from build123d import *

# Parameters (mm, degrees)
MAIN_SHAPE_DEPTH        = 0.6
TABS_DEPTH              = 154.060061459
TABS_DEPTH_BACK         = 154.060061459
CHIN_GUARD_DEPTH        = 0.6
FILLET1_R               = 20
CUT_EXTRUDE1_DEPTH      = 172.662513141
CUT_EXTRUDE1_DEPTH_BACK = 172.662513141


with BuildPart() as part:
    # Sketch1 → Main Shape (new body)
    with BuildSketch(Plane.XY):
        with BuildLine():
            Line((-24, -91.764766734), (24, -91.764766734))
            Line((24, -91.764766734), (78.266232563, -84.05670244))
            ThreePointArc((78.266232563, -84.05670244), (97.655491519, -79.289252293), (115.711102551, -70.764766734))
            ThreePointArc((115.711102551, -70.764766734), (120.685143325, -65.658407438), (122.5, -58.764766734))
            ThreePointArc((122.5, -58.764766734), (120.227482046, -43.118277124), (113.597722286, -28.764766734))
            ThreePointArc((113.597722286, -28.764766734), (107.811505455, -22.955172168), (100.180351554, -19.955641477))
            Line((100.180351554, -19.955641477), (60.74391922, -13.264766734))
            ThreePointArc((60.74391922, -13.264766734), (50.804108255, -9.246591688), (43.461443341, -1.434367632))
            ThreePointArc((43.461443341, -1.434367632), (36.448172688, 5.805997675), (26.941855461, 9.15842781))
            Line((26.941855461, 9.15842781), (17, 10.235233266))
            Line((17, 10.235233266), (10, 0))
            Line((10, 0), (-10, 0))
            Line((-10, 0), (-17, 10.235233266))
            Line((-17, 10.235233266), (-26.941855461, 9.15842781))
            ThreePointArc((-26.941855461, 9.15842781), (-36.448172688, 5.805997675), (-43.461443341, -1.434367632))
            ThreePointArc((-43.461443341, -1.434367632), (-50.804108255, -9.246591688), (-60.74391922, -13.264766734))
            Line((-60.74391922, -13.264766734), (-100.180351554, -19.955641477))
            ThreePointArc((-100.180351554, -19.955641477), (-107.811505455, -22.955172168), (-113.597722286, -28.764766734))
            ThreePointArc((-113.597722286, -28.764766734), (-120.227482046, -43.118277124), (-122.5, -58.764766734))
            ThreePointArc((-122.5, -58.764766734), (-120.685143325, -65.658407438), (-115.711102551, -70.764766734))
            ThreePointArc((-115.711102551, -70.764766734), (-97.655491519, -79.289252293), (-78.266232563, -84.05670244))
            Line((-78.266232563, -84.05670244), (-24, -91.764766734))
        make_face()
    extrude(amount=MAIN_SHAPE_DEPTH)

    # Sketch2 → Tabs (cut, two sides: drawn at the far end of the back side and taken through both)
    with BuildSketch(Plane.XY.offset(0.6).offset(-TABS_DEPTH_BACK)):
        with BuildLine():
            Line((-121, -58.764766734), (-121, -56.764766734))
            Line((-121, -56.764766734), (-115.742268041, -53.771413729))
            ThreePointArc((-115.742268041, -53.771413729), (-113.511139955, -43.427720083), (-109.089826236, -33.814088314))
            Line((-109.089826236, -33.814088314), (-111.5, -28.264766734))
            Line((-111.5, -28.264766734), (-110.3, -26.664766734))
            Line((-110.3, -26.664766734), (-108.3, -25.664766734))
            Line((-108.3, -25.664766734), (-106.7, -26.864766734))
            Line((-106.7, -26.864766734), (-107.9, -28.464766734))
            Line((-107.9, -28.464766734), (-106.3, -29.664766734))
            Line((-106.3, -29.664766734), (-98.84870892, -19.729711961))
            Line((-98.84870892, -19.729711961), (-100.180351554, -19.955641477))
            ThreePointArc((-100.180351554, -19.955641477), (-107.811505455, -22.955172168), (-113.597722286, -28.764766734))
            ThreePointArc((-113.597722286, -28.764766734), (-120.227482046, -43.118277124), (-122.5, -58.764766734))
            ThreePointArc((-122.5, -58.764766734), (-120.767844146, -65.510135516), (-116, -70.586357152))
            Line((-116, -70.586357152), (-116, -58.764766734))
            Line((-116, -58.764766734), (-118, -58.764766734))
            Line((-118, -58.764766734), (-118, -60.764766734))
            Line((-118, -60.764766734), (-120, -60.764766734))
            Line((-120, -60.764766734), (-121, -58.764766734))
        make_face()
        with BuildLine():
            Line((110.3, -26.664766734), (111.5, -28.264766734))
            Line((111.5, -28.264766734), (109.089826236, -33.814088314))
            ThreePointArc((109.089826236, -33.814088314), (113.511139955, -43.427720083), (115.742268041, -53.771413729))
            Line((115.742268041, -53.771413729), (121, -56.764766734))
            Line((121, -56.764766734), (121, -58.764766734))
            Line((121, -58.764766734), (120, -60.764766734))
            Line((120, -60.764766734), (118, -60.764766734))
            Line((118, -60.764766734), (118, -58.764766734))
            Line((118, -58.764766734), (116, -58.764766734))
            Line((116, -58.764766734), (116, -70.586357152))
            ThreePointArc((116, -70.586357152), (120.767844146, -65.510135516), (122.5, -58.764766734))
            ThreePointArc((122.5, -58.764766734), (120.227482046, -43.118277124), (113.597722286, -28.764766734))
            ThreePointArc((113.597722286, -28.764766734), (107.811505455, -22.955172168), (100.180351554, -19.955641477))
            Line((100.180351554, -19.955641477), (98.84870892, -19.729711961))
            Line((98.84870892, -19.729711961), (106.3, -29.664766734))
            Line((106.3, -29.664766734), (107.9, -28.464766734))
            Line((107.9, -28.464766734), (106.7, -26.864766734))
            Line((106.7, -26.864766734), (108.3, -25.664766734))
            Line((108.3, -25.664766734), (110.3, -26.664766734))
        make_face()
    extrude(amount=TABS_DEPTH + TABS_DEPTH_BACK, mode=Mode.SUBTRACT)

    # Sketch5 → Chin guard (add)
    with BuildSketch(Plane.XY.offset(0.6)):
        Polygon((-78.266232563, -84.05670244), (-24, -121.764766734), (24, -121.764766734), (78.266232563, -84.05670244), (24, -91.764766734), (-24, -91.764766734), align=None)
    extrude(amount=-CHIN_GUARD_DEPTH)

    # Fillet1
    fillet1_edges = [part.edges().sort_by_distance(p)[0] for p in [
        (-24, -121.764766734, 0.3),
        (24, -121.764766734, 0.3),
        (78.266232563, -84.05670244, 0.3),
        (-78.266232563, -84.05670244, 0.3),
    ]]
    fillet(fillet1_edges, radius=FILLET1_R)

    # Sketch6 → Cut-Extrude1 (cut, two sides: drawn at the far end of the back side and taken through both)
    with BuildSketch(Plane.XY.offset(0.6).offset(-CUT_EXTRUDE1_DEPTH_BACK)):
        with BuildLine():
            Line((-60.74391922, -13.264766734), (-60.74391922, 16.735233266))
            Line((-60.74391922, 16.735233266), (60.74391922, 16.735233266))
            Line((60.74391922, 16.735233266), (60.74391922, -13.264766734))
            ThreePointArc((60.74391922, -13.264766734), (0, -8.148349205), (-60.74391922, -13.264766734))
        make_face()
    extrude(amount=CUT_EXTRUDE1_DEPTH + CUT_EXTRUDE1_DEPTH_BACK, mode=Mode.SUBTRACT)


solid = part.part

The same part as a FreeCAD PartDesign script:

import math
import FreeCAD as App
import Part
import Sketcher


def edges_at(feature, points):
    """Names of the edges that pass closest to the given points."""
    edges = feature.Shape.Edges
    near = lambda p: min(range(len(edges)), key=lambda i: edges[i].distToShape(Part.Vertex(*p))[0])
    return sorted({f"Edge{near(p) + 1}" for p in points})


def add_polygon(sketch, points):
    """Adds a closed chain of lines whose ends are joined by coincident constraints."""
    first, n = sketch.GeometryCount, len(points)
    for a, b in zip(points, points[1:] + points[:1]):
        sketch.addGeometry(Part.LineSegment(App.Vector(*a, 0), App.Vector(*b, 0)), False)
    for i in range(n):
        sketch.addConstraint(Sketcher.Constraint("Coincident", first + i, 2, first + (i + 1) % n, 1))

doc = App.newDocument("Part")
body = doc.addObject("PartDesign::Body", "Body")

# Sketch on XY plane
sketch1 = body.newObject("Sketcher::SketchObject", "Sketch")
sketch1.AttachmentSupport = (doc.getObject("XY_Plane"), [""])
sketch1.MapMode = "FlatFace"
sketch1.addGeometry(Part.LineSegment(App.Vector(-24, -92, 0), App.Vector(24, -92, 0)), False)
sketch1.addGeometry(Part.LineSegment(App.Vector(24, -92, 0), App.Vector(78, -84, 0)), False)
sketch1.addGeometry(Part.ArcOfCircle(Part.Circle(App.Vector(64, 15, 0), App.Vector(0, 0, 1), 100), math.radians(-82), math.radians(-59)), False)
sketch1.addGeometry(Part.ArcOfCircle(Part.Circle(App.Vector(109, -59, 0), App.Vector(0, 0, 1), 14), math.radians(-59), math.radians(0)), False)
sketch1.addGeometry(Part.ArcOfCircle(Part.Circle(App.Vector(68, -59, 0), App.Vector(0, 0, 1), 55), math.radians(0), math.radians(33)), False)
sketch1.addGeometry(Part.ArcOfCircle(Part.Circle(App.Vector(97, -40, 0), App.Vector(0, 0, 1), 20), math.radians(33), math.radians(80)), False)
sketch1.addGeometry(Part.LineSegment(App.Vector(100, -20, 0), App.Vector(61, -13, 0)), False)
sketch1.addGeometry(Part.ArcOfCircle(Part.Circle(App.Vector(65, 11, 0), App.Vector(0, 0, 1), 25), math.radians(-149), math.radians(-100)), False)
sketch1.addGeometry(Part.ArcOfCircle(Part.Circle(App.Vector(25, -13, 0), App.Vector(0, 0, 1), 22), math.radians(31), math.radians(84)), False)
sketch1.addGeometry(Part.LineSegment(App.Vector(27, 9, 0), App.Vector(17, 10, 0)), False)
sketch1.addGeometry(Part.LineSegment(App.Vector(17, 10, 0), App.Vector(10, 0, 0)), False)
sketch1.addGeometry(Part.LineSegment(App.Vector(10, 0, 0), App.Vector(-10, 0, 0)), False)
sketch1.addGeometry(Part.LineSegment(App.Vector(-10, 0, 0), App.Vector(-17, 10, 0)), False)
sketch1.addGeometry(Part.LineSegment(App.Vector(-17, 10, 0), App.Vector(-27, 9, 0)), False)
sketch1.addGeometry(Part.ArcOfCircle(Part.Circle(App.Vector(-25, -13, 0), App.Vector(0, 0, 1), 22), math.radians(96), math.radians(149)), False)
sketch1.addGeometry(Part.ArcOfCircle(Part.Circle(App.Vector(-65, 11, 0), App.Vector(0, 0, 1), 25), math.radians(-80), math.radians(-31)), False)
sketch1.addGeometry(Part.LineSegment(App.Vector(-61, -13, 0), App.Vector(-100, -20, 0)), False)
sketch1.addGeometry(Part.ArcOfCircle(Part.Circle(App.Vector(-97, -40, 0), App.Vector(0, 0, 1), 20), math.radians(100), math.radians(147)), False)
sketch1.addGeometry(Part.ArcOfCircle(Part.Circle(App.Vector(-68, -59, 0), App.Vector(0, 0, 1), 55), math.radians(147), math.radians(180)), False)
sketch1.addGeometry(Part.ArcOfCircle(Part.Circle(App.Vector(-109, -59, 0), App.Vector(0, 0, 1), 14), math.radians(180), math.radians(239)), False)
sketch1.addGeometry(Part.ArcOfCircle(Part.Circle(App.Vector(-64, 15, 0), App.Vector(0, 0, 1), 100), math.radians(-121), math.radians(-98)), False)
sketch1.addGeometry(Part.LineSegment(App.Vector(-78, -84, 0), App.Vector(-24, -92, 0)), False)
sketch1.addConstraint(Sketcher.Constraint("Coincident", 0, 2, 1, 1))
sketch1.addConstraint(Sketcher.Constraint("Tangent", 1, 2, 2, 1))
sketch1.addConstraint(Sketcher.Constraint("Tangent", 2, 2, 3, 1))
sketch1.addConstraint(Sketcher.Constraint("Tangent", 3, 2, 4, 1))
sketch1.addConstraint(Sketcher.Constraint("Tangent", 4, 2, 5, 1))
sketch1.addConstraint(Sketcher.Constraint("Tangent", 5, 2, 6, 1))
sketch1.addConstraint(Sketcher.Constraint("Tangent", 6, 2, 7, 2))
sketch1.addConstraint(Sketcher.Constraint("Tangent", 7, 1, 8, 1))
sketch1.addConstraint(Sketcher.Constraint("Tangent", 8, 2, 9, 1))
sketch1.addConstraint(Sketcher.Constraint("Coincident", 9, 2, 10, 1))
sketch1.addConstraint(Sketcher.Constraint("Coincident", 10, 2, 11, 1))
sketch1.addConstraint(Sketcher.Constraint("Coincident", 11, 2, 12, 1))
sketch1.addConstraint(Sketcher.Constraint("Coincident", 12, 2, 13, 1))
sketch1.addConstraint(Sketcher.Constraint("Tangent", 13, 2, 14, 1))
sketch1.addConstraint(Sketcher.Constraint("Tangent", 14, 2, 15, 2))
sketch1.addConstraint(Sketcher.Constraint("Tangent", 15, 1, 16, 1))
sketch1.addConstraint(Sketcher.Constraint("Tangent", 16, 2, 17, 1))
sketch1.addConstraint(Sketcher.Constraint("Tangent", 17, 2, 18, 1))
sketch1.addConstraint(Sketcher.Constraint("Tangent", 18, 2, 19, 1))
sketch1.addConstraint(Sketcher.Constraint("Tangent", 19, 2, 20, 1))
sketch1.addConstraint(Sketcher.Constraint("Tangent", 20, 2, 21, 1))
sketch1.addConstraint(Sketcher.Constraint("Coincident", 21, 2, 0, 1))
sketch1.addConstraint(Sketcher.Constraint("Horizontal", 0))
sketch1.addConstraint(Sketcher.Constraint("Horizontal", 11))
sketch1.addConstraint(Sketcher.Constraint("Equal", 8, 14))
sketch1.addConstraint(Sketcher.Constraint("Equal", 7, 15))
sketch1.addConstraint(Sketcher.Constraint("Equal", 5, 17))
sketch1.addConstraint(Sketcher.Constraint("Equal", 4, 18))
sketch1.addConstraint(Sketcher.Constraint("Equal", 3, 19))
sketch1.addConstraint(Sketcher.Constraint("Equal", 2, 20))
sketch1.addConstraint(Sketcher.Constraint("Symmetric", 10, 2, 11, 2, -1, 1))
sketch1.addConstraint(Sketcher.Constraint("Symmetric", 8, 3, 14, 3, -2))
sketch1.addConstraint(Sketcher.Constraint("Symmetric", 5, 3, 17, 3, -2))
sketch1.addConstraint(Sketcher.Constraint("Symmetric", 3, 3, 19, 3, -2))
sketch1.addConstraint(Sketcher.Constraint("Symmetric", 9, 2, 12, 2, -2))
sketch1.addConstraint(Sketcher.Constraint("Symmetric", 1, 2, 20, 2, -2))
sketch1.addConstraint(Sketcher.Constraint("Horizontal", 3, 3, 4, 3))
sketch1.addConstraint(Sketcher.Constraint("Horizontal", 7, 3, 15, 3))
sketch1.addConstraint(Sketcher.Constraint("Radius", 2, 100.0))
sketch1.addConstraint(Sketcher.Constraint("Radius", 3, 14.0))
sketch1.addConstraint(Sketcher.Constraint("Radius", 4, 55.0))
sketch1.addConstraint(Sketcher.Constraint("Radius", 5, 20.0))
sketch1.addConstraint(Sketcher.Constraint("Radius", 7, 25.0))
sketch1.addConstraint(Sketcher.Constraint("Radius", 8, 22.0))
sketch1.addConstraint(Sketcher.Constraint("DistanceX", 0, 1, 0, 2, 48.0))
sketch1.addConstraint(Sketcher.Constraint("DistanceX", 11, 2, 11, 1, 20.0))
sketch1.addConstraint(Sketcher.Constraint("Distance", 6, 40.0))
sketch1.addConstraint(Sketcher.Constraint("Distance", 9, 10.0))
sketch1.addConstraint(Sketcher.Constraint("DistanceX", -1, 1, 9, 2, 17.0))
sketch1.addConstraint(Sketcher.Constraint("DistanceX", 18, 3, 4, 3, 135.0))
sketch1.addConstraint(Sketcher.Constraint("DistanceY", 0, 2, 4, 3, 33.0))
sketch1.addConstraint(Sketcher.Constraint("DistanceY", 3, 3, 4, 2, 30.0))
sketch1.addConstraint(Sketcher.Constraint("DistanceY", 19, 2, 19, 3, 12.0))
sketch1.addConstraint(Sketcher.Constraint("Distance", 10, 12.4))
sketch1.addConstraint(Sketcher.Constraint("DistanceY", 17, 2, 15, 1, 15.5))
sketch1.addConstraint(Sketcher.Constraint("DistanceX", 14, 3, 7, 3, 89.498599))
pad1 = body.newObject("PartDesign::Pad", "Pad")
pad1.Profile = sketch1
pad1.Length = 0.6

# Sketch on XY plane
sketch2 = body.newObject("Sketcher::SketchObject", "Sketch001")
sketch2.AttachmentSupport = (doc.getObject("XY_Plane"), [""])
sketch2.MapMode = "FlatFace"
sketch2.AttachmentOffset = App.Placement(App.Vector(0, 0, 0.6), App.Rotation())
sketch2.addGeometry(Part.LineSegment(App.Vector(-121, -58.8, 0), App.Vector(-121, -56.8, 0)), False)
sketch2.addGeometry(Part.LineSegment(App.Vector(-121, -56.8, 0), App.Vector(-115.7, -53.8, 0)), False)
sketch2.addGeometry(Part.ArcOfCircle(Part.Circle(App.Vector(-67.5, -58.8, 0), App.Vector(0, 0, 1), 48.5), math.radians(149), math.radians(174)), False)
sketch2.addGeometry(Part.LineSegment(App.Vector(-109.1, -33.8, 0), App.Vector(-111.5, -28.3, 0)), False)
sketch2.addGeometry(Part.LineSegment(App.Vector(-111.5, -28.3, 0), App.Vector(-110.3, -26.7, 0)), False)
sketch2.addGeometry(Part.LineSegment(App.Vector(-110.3, -26.7, 0), App.Vector(-108.3, -25.7, 0)), False)
sketch2.addGeometry(Part.LineSegment(App.Vector(-108.3, -25.7, 0), App.Vector(-106.7, -26.9, 0)), False)
sketch2.addGeometry(Part.LineSegment(App.Vector(-106.7, -26.9, 0), App.Vector(-107.9, -28.5, 0)), False)
sketch2.addGeometry(Part.LineSegment(App.Vector(-107.9, -28.5, 0), App.Vector(-106.3, -29.7, 0)), False)
sketch2.addGeometry(Part.LineSegment(App.Vector(-106.3, -29.7, 0), App.Vector(-98.8, -19.7, 0)), False)
sketch2.addGeometry(Part.LineSegment(App.Vector(-98.8, -19.7, 0), App.Vector(-100.2, -20, 0)), False)
sketch2.addGeometry(Part.ArcOfCircle(Part.Circle(App.Vector(-96.8, -39.7, 0), App.Vector(0, 0, 1), 20), math.radians(100), math.radians(147)), False)
sketch2.addGeometry(Part.ArcOfCircle(Part.Circle(App.Vector(-67.5, -58.8, 0), App.Vector(0, 0, 1), 55), math.radians(147), math.radians(180)), False)
sketch2.addGeometry(Part.ArcOfCircle(Part.Circle(App.Vector(-108.5, -58.8, 0), App.Vector(0, 0, 1), 14), math.radians(-180), math.radians(-122)), False)
sketch2.addGeometry(Part.LineSegment(App.Vector(-116, -70.6, 0), App.Vector(-116, -58.8, 0)), False)
sketch2.addGeometry(Part.LineSegment(App.Vector(-116, -58.8, 0), App.Vector(-118, -58.8, 0)), False)
sketch2.addGeometry(Part.LineSegment(App.Vector(-118, -58.8, 0), App.Vector(-118, -60.8, 0)), False)
sketch2.addGeometry(Part.LineSegment(App.Vector(-118, -60.8, 0), App.Vector(-120, -60.8, 0)), False)
sketch2.addGeometry(Part.LineSegment(App.Vector(-120, -60.8, 0), App.Vector(-121, -58.8, 0)), False)
sketch2.addGeometry(Part.LineSegment(App.Vector(110.3, -26.7, 0), App.Vector(111.5, -28.3, 0)), False)
sketch2.addGeometry(Part.LineSegment(App.Vector(111.5, -28.3, 0), App.Vector(109.1, -33.8, 0)), False)
sketch2.addGeometry(Part.ArcOfCircle(Part.Circle(App.Vector(67.5, -58.8, 0), App.Vector(0, 0, 1), 48.5), math.radians(6), math.radians(31)), False)
sketch2.addGeometry(Part.LineSegment(App.Vector(115.7, -53.8, 0), App.Vector(121, -56.8, 0)), False)
sketch2.addGeometry(Part.LineSegment(App.Vector(121, -56.8, 0), App.Vector(121, -58.8, 0)), False)
sketch2.addGeometry(Part.LineSegment(App.Vector(121, -58.8, 0), App.Vector(120, -60.8, 0)), False)
sketch2.addGeometry(Part.LineSegment(App.Vector(120, -60.8, 0), App.Vector(118, -60.8, 0)), False)
sketch2.addGeometry(Part.LineSegment(App.Vector(118, -60.8, 0), App.Vector(118, -58.8, 0)), False)
sketch2.addGeometry(Part.LineSegment(App.Vector(118, -58.8, 0), App.Vector(116, -58.8, 0)), False)
sketch2.addGeometry(Part.LineSegment(App.Vector(116, -58.8, 0), App.Vector(116, -70.6, 0)), False)
sketch2.addGeometry(Part.ArcOfCircle(Part.Circle(App.Vector(108.5, -58.8, 0), App.Vector(0, 0, 1), 14), math.radians(-58), math.radians(0)), False)
sketch2.addGeometry(Part.ArcOfCircle(Part.Circle(App.Vector(67.5, -58.8, 0), App.Vector(0, 0, 1), 55), math.radians(0), math.radians(33)), False)
sketch2.addGeometry(Part.ArcOfCircle(Part.Circle(App.Vector(96.8, -39.7, 0), App.Vector(0, 0, 1), 20), math.radians(33), math.radians(80)), False)
sketch2.addGeometry(Part.LineSegment(App.Vector(100.2, -20, 0), App.Vector(98.8, -19.7, 0)), False)
sketch2.addGeometry(Part.LineSegment(App.Vector(98.8, -19.7, 0), App.Vector(106.3, -29.7, 0)), False)
sketch2.addGeometry(Part.LineSegment(App.Vector(106.3, -29.7, 0), App.Vector(107.9, -28.5, 0)), False)
sketch2.addGeometry(Part.LineSegment(App.Vector(107.9, -28.5, 0), App.Vector(106.7, -26.9, 0)), False)
sketch2.addGeometry(Part.LineSegment(App.Vector(106.7, -26.9, 0), App.Vector(108.3, -25.7, 0)), False)
sketch2.addGeometry(Part.LineSegment(App.Vector(108.3, -25.7, 0), App.Vector(110.3, -26.7, 0)), False)
sketch2.addConstraint(Sketcher.Constraint("Coincident", 0, 2, 1, 1))
sketch2.addConstraint(Sketcher.Constraint("Coincident", 1, 2, 2, 2))
sketch2.addConstraint(Sketcher.Constraint("Coincident", 2, 1, 3, 1))
sketch2.addConstraint(Sketcher.Constraint("Coincident", 3, 2, 4, 1))
sketch2.addConstraint(Sketcher.Constraint("Coincident", 4, 2, 5, 1))
sketch2.addConstraint(Sketcher.Constraint("Coincident", 5, 2, 6, 1))
sketch2.addConstraint(Sketcher.Constraint("Coincident", 6, 2, 7, 1))
sketch2.addConstraint(Sketcher.Constraint("Coincident", 7, 2, 8, 1))
sketch2.addConstraint(Sketcher.Constraint("Coincident", 8, 2, 9, 1))
sketch2.addConstraint(Sketcher.Constraint("Coincident", 9, 2, 10, 1))
sketch2.addConstraint(Sketcher.Constraint("Tangent", 10, 2, 11, 1))
sketch2.addConstraint(Sketcher.Constraint("Tangent", 11, 2, 12, 1))
sketch2.addConstraint(Sketcher.Constraint("Tangent", 12, 2, 13, 1))
sketch2.addConstraint(Sketcher.Constraint("Coincident", 13, 2, 14, 1))
sketch2.addConstraint(Sketcher.Constraint("Coincident", 14, 2, 15, 1))
sketch2.addConstraint(Sketcher.Constraint("Coincident", 15, 2, 16, 1))
sketch2.addConstraint(Sketcher.Constraint("Coincident", 16, 2, 17, 1))
sketch2.addConstraint(Sketcher.Constraint("Coincident", 17, 2, 18, 1))
sketch2.addConstraint(Sketcher.Constraint("Coincident", 18, 2, 0, 1))
sketch2.addConstraint(Sketcher.Constraint("Coincident", 19, 2, 20, 1))
sketch2.addConstraint(Sketcher.Constraint("Coincident", 20, 2, 21, 2))
sketch2.addConstraint(Sketcher.Constraint("Coincident", 21, 1, 22, 1))
sketch2.addConstraint(Sketcher.Constraint("Coincident", 22, 2, 23, 1))
sketch2.addConstraint(Sketcher.Constraint("Coincident", 23, 2, 24, 1))
sketch2.addConstraint(Sketcher.Constraint("Coincident", 24, 2, 25, 1))
sketch2.addConstraint(Sketcher.Constraint("Coincident", 25, 2, 26, 1))
sketch2.addConstraint(Sketcher.Constraint("Coincident", 26, 2, 27, 1))
sketch2.addConstraint(Sketcher.Constraint("Coincident", 27, 2, 28, 1))
sketch2.addConstraint(Sketcher.Constraint("Coincident", 28, 2, 29, 1))
sketch2.addConstraint(Sketcher.Constraint("Tangent", 29, 2, 30, 1))
sketch2.addConstraint(Sketcher.Constraint("Tangent", 30, 2, 31, 1))
sketch2.addConstraint(Sketcher.Constraint("Tangent", 31, 2, 32, 1))
sketch2.addConstraint(Sketcher.Constraint("Coincident", 32, 2, 33, 1))
sketch2.addConstraint(Sketcher.Constraint("Coincident", 33, 2, 34, 1))
sketch2.addConstraint(Sketcher.Constraint("Coincident", 34, 2, 35, 1))
sketch2.addConstraint(Sketcher.Constraint("Coincident", 35, 2, 36, 1))
sketch2.addConstraint(Sketcher.Constraint("Coincident", 36, 2, 37, 1))
sketch2.addConstraint(Sketcher.Constraint("Coincident", 37, 2, 19, 1))
sketch2.addConstraint(Sketcher.Constraint("Vertical", 0))
sketch2.addConstraint(Sketcher.Constraint("Vertical", 14))
sketch2.addConstraint(Sketcher.Constraint("Horizontal", 15))
sketch2.addConstraint(Sketcher.Constraint("Vertical", 16))
sketch2.addConstraint(Sketcher.Constraint("Horizontal", 17))
sketch2.addConstraint(Sketcher.Constraint("Vertical", 23))
sketch2.addConstraint(Sketcher.Constraint("Horizontal", 25))
sketch2.addConstraint(Sketcher.Constraint("Vertical", 26))
sketch2.addConstraint(Sketcher.Constraint("Horizontal", 27))
sketch2.addConstraint(Sketcher.Constraint("Vertical", 28))
sketch2.addConstraint(Sketcher.Constraint("Coincident", 12, 3, 2, 3))
sketch2.addConstraint(Sketcher.Constraint("Coincident", 30, 3, 21, 3))
sketch2.addConstraint(Sketcher.Constraint("Equal", 2, 21))
sketch2.addConstraint(Sketcher.Constraint("Equal", 13, 29))
sketch2.addConstraint(Sketcher.Constraint("Equal", 12, 30))
sketch2.addConstraint(Sketcher.Constraint("Equal", 11, 31))
sketch2.addConstraint(Sketcher.Constraint("Symmetric", 2, 3, 21, 3, -2))
sketch2.addConstraint(Sketcher.Constraint("Symmetric", 3, 2, 19, 2, -2))
sketch2.addConstraint(Sketcher.Constraint("Symmetric", 0, 2, 22, 2, -2))
sketch2.addConstraint(Sketcher.Constraint("Symmetric", 17, 2, 24, 2, -2))
sketch2.addConstraint(Sketcher.Constraint("Symmetric", 15, 2, 26, 2, -2))
sketch2.addConstraint(Sketcher.Constraint("Symmetric", 13, 2, 28, 2, -2))
sketch2.addConstraint(Sketcher.Constraint("Symmetric", 10, 2, 31, 2, -2))
sketch2.addConstraint(Sketcher.Constraint("Symmetric", 8, 2, 33, 2, -2))
sketch2.addConstraint(Sketcher.Constraint("Symmetric", 7, 2, 34, 2, -2))
sketch2.addConstraint(Sketcher.Constraint("Symmetric", 6, 2, 35, 2, -2))
sketch2.addConstraint(Sketcher.Constraint("Symmetric", 5, 2, 36, 2, -2))
sketch2.addConstraint(Sketcher.Constraint("Symmetric", 4, 2, 37, 2, -2))
sketch2.addConstraint(Sketcher.Constraint("Perpendicular", 4, 6))
sketch2.addConstraint(Sketcher.Constraint("Perpendicular", 6, 7))
sketch2.addConstraint(Sketcher.Constraint("Perpendicular", 7, 8))
sketch2.addConstraint(Sketcher.Constraint("Perpendicular", 8, 9))
sketch2.addConstraint(Sketcher.Constraint("Perpendicular", 5, 18))
sketch2.addConstraint(Sketcher.Constraint("Parallel", 19, 33))
sketch2.addConstraint(Sketcher.Constraint("Perpendicular", 24, 37))
sketch2.addConstraint(Sketcher.Constraint("Horizontal", 12, 3, 13, 3))
sketch2.addConstraint(Sketcher.Constraint("Horizontal", 12, 2, 14, 2))
sketch2.addConstraint(Sketcher.Constraint("Horizontal", 15, 2, 18, 2))
sketch2.addConstraint(Sketcher.Constraint("Horizontal", 2, 1, 20, 2))
sketch2.addConstraint(Sketcher.Constraint("Horizontal", 1, 2, 21, 1))
sketch2.addConstraint(Sketcher.Constraint("Equal", 15, 17))
sketch2.addConstraint(Sketcher.Constraint("Equal", 27, 0))
sketch2.addConstraint(Sketcher.Constraint("Equal", 0, 16))
sketch2.addConstraint(Sketcher.Constraint("Equal", 1, 3))
sketch2.addConstraint(Sketcher.Constraint("Equal", 4, 6))
sketch2.addConstraint(Sketcher.Constraint("Equal", 6, 7))
sketch2.addConstraint(Sketcher.Constraint("Equal", 7, 8))
sketch2.addConstraint(Sketcher.Constraint("Equal", 5, 18))
sketch2.addConstraint(Sketcher.Constraint("Radius", 11, 20.0))
sketch2.addConstraint(Sketcher.Constraint("Radius", 12, 55.0))
sketch2.addConstraint(Sketcher.Constraint("Radius", 13, 14.0))
sketch2.addConstraint(Sketcher.Constraint("Radius", 2, 48.5))
sketch2.addConstraint(Sketcher.Constraint("DistanceX", 15, 2, 15, 1, 2.0))
sketch2.addConstraint(Sketcher.Constraint("Distance", 4, 2.0))
sketch2.addConstraint(Sketcher.Constraint("DistanceX", 0, 2, -1, 1, 121.0))
sketch2.addConstraint(Sketcher.Constraint("DistanceX", 13, 2, -1, 1, 116.0))
sketch2.addConstraint(Sketcher.Constraint("DistanceX", 2, 3, 21, 3, 135.0))
sketch2.addConstraint(Sketcher.Constraint("DistanceX", 3, 2, 13, 3, 3.0))
sketch2.addConstraint(Sketcher.Constraint("DistanceX", 5, 2, 8, 2, 2.0))
sketch2.addConstraint(Sketcher.Constraint("DistanceY", 12, 2, 11, 2, 30.0))
sketch2.addConstraint(Sketcher.Constraint("DistanceY", 0, 2, 3, 2, 28.5))
sketch2.addConstraint(Sketcher.Constraint("Distance", 9, 12.418818))
sketch2.addConstraint(Sketcher.Constraint("DistanceX", 1, 2, -1, 1, 115.742268))
sketch2.addConstraint(Sketcher.Constraint("DistanceY", 2, 1, -1, 1, 33.814088))
pocket1 = body.newObject("PartDesign::Pocket", "Pocket")
pocket1.Profile = sketch2
pocket1.Type = "ThroughAll"
pocket1.Midplane = True

# Sketch on XY plane
sketch3 = body.newObject("Sketcher::SketchObject", "Sketch002")
sketch3.AttachmentSupport = (doc.getObject("XY_Plane"), [""])
sketch3.MapMode = "FlatFace"
sketch3.AttachmentOffset = App.Placement(App.Vector(0, 0, 0.6), App.Rotation())
add_polygon(sketch3, [(-78, -84), (-24, -122), (24, -122), (78, -84), (24, -92), (-24, -92)])  # lines 0-5
sketch3.addConstraint(Sketcher.Constraint("Horizontal", 1))
sketch3.addConstraint(Sketcher.Constraint("Horizontal", 4))
sketch3.addConstraint(Sketcher.Constraint("Symmetric", 2, 2, 5, 2, -2))
sketch3.addConstraint(Sketcher.Constraint("Vertical", 1, 2, 3, 2))
sketch3.addConstraint(Sketcher.Constraint("Vertical", 0, 2, 4, 2))
sketch3.addConstraint(Sketcher.Constraint("Equal", 0, 2))
sketch3.addConstraint(Sketcher.Constraint("DistanceX", 1, 1, 1, 2, 48.0))
sketch3.addConstraint(Sketcher.Constraint("DistanceY", 1, 2, 3, 2, 30.0))
sketch3.addConstraint(Sketcher.Constraint("Distance", 0, 66.081178))
sketch3.addConstraint(Sketcher.Constraint("Distance", 3, 54.810932))
sketch3.addConstraint(Sketcher.Constraint("DistanceY", 0, 2, -1, 1, 121.764767))
pad2 = body.newObject("PartDesign::Pad", "Pad001")
pad2.Profile = sketch3
pad2.Length = 0.6
pad2.Reversed = True
doc.recompute()

fillet = body.newObject("PartDesign::Fillet", "Fillet")
fillet.Base = (pad2, edges_at(pad2, [
    (-24, -121.765, 0.3),
    (24, -121.765, 0.3),
    (78.266, -84.057, 0.3),
    (-78.266, -84.057, 0.3),
]))
fillet.Radius = 20

# Sketch on XY plane
sketch4 = body.newObject("Sketcher::SketchObject", "Sketch003")
sketch4.AttachmentSupport = (doc.getObject("XY_Plane"), [""])
sketch4.MapMode = "FlatFace"
sketch4.AttachmentOffset = App.Placement(App.Vector(0, 0, 0.6), App.Rotation())
sketch4.addGeometry(Part.LineSegment(App.Vector(-61, 17, 0), App.Vector(-61, -13, 0)), False)
sketch4.addGeometry(Part.ArcOfCircle(Part.Circle(App.Vector(0, -371, 0), App.Vector(0, 0, 1), 363), math.radians(80.37), math.radians(99.63)), False)
sketch4.addGeometry(Part.LineSegment(App.Vector(61, -13, 0), App.Vector(61, 17, 0)), False)
sketch4.addGeometry(Part.LineSegment(App.Vector(61, 17, 0), App.Vector(-61, 17, 0)), False)
sketch4.addConstraint(Sketcher.Constraint("Coincident", 0, 2, 1, 2))
sketch4.addConstraint(Sketcher.Constraint("Coincident", 1, 1, 2, 1))
sketch4.addConstraint(Sketcher.Constraint("Coincident", 2, 2, 3, 1))
sketch4.addConstraint(Sketcher.Constraint("Coincident", 3, 2, 0, 1))
sketch4.addConstraint(Sketcher.Constraint("Vertical", 0))
sketch4.addConstraint(Sketcher.Constraint("Vertical", 2))
sketch4.addConstraint(Sketcher.Constraint("Horizontal", 3))
sketch4.addConstraint(Sketcher.Constraint("Symmetric", 0, 2, 1, 1, -2))
sketch4.addConstraint(Sketcher.Constraint("DistanceY", 0, 2, 0, 1, 30.0))
sketch4.addConstraint(Sketcher.Constraint("Radius", 1, 363.14486))
sketch4.addConstraint(Sketcher.Constraint("DistanceX", 3, 2, 3, 1, 121.487838))
sketch4.addConstraint(Sketcher.Constraint("DistanceY", 1, 3, -1, 1, 371.293209))
pocket2 = body.newObject("PartDesign::Pocket", "Pocket001")
pocket2.Profile = sketch4
pocket2.Type = "ThroughAll"
pocket2.Midplane = True

doc.recompute()
